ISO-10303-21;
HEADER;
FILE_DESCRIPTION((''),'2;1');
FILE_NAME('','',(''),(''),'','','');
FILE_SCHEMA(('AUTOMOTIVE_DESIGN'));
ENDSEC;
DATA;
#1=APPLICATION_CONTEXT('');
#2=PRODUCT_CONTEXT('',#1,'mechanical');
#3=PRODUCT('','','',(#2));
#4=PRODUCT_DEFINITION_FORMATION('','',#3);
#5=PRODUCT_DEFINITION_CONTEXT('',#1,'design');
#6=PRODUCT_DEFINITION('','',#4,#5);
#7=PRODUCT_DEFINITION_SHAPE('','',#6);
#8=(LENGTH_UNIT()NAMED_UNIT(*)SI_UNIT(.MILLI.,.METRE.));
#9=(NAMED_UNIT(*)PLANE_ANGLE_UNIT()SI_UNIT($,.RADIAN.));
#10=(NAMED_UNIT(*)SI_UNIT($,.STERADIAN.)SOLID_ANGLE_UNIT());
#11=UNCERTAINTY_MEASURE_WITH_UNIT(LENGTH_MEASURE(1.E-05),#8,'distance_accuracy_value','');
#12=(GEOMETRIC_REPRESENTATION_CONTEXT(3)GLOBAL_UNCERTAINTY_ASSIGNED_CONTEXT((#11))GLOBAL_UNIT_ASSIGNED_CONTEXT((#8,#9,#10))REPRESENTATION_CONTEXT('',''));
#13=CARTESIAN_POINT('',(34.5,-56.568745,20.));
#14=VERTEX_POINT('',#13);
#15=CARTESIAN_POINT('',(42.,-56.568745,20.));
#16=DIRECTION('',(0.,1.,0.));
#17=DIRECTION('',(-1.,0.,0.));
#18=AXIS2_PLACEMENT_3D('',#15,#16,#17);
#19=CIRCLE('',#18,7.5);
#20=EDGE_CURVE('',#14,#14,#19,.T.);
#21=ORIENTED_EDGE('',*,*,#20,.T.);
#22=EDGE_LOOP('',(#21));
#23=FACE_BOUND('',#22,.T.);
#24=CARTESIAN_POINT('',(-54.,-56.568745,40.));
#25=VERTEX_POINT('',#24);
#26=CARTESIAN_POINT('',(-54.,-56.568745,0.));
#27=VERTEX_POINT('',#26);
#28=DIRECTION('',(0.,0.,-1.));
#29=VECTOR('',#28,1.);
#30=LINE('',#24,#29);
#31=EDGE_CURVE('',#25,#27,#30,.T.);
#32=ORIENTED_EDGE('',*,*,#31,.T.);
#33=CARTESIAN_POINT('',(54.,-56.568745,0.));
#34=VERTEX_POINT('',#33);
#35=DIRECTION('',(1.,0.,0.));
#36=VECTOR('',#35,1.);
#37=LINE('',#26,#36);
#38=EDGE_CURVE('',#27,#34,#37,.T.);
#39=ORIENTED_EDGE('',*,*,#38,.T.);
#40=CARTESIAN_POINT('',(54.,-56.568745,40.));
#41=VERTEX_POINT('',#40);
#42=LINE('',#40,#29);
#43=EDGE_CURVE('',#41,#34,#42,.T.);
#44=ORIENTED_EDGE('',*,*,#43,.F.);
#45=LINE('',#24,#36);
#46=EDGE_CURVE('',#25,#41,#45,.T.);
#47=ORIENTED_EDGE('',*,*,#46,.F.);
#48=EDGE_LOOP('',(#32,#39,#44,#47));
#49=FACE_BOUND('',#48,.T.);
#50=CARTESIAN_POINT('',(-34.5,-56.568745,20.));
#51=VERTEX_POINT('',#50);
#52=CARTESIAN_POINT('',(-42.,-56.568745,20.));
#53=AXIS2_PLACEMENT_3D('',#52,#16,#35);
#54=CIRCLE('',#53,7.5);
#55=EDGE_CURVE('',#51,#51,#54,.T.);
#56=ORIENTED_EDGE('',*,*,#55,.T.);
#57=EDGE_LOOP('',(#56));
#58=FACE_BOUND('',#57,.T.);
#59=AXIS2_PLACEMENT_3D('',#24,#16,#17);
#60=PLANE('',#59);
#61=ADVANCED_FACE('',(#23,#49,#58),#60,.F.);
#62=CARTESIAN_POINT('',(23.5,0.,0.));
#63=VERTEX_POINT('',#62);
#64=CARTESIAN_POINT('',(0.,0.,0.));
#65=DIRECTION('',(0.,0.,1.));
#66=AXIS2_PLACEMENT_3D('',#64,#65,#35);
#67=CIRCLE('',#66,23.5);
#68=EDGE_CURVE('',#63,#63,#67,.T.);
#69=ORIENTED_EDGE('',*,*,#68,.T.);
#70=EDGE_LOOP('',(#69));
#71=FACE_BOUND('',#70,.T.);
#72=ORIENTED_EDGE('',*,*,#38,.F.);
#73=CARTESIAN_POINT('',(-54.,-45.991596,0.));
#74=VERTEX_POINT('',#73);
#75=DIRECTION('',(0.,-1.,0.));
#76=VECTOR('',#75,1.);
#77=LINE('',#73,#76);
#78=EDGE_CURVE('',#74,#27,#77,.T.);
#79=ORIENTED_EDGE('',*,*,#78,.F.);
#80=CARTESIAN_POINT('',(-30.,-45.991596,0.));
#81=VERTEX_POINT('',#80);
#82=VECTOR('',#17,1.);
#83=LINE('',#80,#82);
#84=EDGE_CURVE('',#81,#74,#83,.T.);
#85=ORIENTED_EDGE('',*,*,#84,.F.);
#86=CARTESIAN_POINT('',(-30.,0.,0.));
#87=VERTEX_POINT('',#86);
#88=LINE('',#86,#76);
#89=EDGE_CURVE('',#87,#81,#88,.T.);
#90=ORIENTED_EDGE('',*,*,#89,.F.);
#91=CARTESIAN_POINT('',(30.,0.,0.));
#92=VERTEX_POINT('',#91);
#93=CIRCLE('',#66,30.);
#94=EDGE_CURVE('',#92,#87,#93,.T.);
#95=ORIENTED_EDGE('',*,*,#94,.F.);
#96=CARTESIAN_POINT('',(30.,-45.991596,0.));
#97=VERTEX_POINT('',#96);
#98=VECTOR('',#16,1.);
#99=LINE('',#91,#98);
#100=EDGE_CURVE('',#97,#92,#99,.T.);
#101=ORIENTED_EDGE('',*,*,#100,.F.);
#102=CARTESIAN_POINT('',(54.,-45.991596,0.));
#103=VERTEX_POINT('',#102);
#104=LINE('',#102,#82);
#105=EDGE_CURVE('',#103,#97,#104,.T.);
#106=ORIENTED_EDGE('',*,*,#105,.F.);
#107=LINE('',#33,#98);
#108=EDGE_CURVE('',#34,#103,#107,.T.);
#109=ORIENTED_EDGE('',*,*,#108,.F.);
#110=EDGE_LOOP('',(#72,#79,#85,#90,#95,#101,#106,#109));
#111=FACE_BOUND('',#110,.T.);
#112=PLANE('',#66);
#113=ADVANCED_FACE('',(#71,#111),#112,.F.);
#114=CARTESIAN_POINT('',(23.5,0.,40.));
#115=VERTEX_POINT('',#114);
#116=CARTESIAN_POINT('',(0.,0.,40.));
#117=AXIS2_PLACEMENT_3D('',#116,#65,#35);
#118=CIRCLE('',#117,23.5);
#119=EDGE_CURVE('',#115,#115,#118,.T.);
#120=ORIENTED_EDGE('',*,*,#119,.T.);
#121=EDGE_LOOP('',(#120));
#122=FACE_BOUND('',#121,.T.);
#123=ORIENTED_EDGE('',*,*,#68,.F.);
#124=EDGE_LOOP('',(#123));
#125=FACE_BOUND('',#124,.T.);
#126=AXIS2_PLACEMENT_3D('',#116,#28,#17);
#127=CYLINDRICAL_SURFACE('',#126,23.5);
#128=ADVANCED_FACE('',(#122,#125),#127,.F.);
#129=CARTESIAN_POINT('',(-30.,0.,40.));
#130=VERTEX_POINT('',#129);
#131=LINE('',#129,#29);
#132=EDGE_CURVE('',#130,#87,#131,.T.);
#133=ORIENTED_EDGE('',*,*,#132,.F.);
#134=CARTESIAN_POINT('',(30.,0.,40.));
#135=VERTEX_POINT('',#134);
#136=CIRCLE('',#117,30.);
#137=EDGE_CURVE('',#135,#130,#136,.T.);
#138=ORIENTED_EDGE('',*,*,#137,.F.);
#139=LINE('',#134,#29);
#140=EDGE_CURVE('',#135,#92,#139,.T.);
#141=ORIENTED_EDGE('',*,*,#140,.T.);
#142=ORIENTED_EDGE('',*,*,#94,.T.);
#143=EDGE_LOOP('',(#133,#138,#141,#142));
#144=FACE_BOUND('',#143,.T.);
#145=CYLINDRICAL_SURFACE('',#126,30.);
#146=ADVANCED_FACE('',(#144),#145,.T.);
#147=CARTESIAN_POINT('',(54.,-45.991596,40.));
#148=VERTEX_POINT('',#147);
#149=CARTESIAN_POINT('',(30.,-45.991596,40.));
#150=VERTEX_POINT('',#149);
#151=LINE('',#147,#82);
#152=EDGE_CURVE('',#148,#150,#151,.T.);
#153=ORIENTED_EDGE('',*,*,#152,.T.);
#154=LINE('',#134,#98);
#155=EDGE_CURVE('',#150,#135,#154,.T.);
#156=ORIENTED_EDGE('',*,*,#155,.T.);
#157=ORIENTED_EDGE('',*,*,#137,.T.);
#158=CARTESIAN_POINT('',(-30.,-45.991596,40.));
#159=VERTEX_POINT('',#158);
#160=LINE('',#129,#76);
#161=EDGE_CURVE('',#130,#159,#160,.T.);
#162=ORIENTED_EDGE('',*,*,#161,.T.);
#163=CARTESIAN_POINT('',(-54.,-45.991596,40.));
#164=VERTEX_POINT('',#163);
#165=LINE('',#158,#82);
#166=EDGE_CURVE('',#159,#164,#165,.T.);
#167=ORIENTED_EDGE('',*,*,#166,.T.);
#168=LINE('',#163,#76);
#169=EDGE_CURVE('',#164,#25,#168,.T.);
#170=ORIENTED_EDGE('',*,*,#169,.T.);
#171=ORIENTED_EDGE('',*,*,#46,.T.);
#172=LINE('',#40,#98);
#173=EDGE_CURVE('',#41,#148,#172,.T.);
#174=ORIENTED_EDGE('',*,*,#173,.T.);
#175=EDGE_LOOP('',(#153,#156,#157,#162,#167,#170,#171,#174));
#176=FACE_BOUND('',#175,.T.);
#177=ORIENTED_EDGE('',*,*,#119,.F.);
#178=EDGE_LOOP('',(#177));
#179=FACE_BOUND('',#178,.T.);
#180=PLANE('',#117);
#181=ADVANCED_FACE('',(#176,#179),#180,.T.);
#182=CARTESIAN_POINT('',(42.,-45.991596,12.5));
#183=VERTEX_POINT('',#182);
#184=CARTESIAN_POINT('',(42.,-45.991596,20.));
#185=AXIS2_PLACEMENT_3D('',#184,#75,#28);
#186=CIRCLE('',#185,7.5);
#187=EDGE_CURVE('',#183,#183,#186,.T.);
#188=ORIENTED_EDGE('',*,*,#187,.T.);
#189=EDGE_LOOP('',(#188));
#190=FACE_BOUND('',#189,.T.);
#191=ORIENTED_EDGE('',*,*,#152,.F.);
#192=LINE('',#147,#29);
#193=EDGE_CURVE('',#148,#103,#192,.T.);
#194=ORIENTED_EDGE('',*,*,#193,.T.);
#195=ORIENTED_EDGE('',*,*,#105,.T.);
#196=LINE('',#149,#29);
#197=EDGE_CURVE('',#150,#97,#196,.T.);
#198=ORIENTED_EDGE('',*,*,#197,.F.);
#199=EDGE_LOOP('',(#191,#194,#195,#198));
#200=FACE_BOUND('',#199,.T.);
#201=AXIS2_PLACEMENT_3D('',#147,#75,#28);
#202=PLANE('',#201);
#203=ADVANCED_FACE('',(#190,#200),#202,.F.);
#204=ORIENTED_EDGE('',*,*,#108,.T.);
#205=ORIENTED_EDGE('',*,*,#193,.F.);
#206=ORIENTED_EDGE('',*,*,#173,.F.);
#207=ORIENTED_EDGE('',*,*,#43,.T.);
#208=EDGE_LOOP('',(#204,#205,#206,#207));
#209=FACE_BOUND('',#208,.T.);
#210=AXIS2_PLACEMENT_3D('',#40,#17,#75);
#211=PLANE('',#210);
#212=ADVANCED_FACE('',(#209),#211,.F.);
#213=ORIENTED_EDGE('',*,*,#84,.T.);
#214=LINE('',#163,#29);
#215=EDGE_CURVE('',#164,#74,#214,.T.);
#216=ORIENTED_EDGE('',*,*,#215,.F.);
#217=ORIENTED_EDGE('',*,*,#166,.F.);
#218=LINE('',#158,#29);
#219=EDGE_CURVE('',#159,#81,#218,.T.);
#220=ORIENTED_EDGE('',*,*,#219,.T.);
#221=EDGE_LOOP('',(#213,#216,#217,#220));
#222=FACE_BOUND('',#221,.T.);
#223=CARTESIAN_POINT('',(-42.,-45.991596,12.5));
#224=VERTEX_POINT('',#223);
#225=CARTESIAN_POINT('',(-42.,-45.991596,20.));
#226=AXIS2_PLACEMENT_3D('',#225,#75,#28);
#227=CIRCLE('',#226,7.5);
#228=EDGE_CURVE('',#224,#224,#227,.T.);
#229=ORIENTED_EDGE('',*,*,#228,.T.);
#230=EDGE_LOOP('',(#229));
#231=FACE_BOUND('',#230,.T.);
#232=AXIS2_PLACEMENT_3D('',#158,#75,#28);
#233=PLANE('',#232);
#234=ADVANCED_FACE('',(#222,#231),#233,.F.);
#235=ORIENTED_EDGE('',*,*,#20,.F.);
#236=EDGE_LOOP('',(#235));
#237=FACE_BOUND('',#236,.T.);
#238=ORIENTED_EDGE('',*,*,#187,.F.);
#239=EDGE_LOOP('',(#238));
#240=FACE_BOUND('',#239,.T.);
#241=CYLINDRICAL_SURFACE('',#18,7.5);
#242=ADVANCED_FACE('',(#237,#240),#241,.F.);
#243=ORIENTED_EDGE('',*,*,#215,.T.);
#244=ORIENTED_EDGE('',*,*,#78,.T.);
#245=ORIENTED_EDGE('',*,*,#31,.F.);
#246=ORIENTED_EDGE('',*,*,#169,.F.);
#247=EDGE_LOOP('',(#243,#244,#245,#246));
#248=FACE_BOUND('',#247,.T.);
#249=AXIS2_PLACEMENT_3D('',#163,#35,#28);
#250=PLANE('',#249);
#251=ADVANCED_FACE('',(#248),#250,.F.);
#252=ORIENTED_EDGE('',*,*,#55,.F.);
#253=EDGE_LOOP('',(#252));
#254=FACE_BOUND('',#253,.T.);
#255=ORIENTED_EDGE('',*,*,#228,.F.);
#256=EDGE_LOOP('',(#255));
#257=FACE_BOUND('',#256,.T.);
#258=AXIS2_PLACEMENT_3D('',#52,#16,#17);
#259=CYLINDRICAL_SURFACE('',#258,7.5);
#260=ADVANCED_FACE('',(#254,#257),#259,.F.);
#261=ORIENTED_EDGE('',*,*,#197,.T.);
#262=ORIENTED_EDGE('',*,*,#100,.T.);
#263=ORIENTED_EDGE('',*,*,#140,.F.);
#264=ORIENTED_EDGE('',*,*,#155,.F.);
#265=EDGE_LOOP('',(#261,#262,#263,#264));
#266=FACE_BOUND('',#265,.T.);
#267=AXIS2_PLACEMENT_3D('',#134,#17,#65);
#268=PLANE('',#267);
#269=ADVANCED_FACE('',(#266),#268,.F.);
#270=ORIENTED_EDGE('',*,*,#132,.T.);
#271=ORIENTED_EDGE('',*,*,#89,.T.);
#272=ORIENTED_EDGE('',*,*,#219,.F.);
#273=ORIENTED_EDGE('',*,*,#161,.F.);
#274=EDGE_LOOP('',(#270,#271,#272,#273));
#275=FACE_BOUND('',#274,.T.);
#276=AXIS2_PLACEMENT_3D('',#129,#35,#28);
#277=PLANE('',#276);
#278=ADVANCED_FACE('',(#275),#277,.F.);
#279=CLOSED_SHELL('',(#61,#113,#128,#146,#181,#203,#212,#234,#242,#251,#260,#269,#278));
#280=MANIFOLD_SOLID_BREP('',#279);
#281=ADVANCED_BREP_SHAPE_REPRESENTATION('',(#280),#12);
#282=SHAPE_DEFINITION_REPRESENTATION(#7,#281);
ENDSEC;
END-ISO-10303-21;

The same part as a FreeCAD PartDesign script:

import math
import FreeCAD as App
import Part
import Sketcher

V = App.Vector

doc = App.newDocument("Part")
body = doc.addObject("PartDesign::Body", "Body")

sketch1 = doc.addObject("Sketcher::SketchObject", "Sketch")
body.addObject(sketch1)
sketch1.AttachmentSupport = (doc.XY_Plane, [""])
sketch1.MapMode = "FlatFace"
sketch1.addGeometry(Part.LineSegment(V(-30, 0, 0), V(-30, -46, 0)), False)
sketch1.addGeometry(Part.LineSegment(V(-30, -46, 0), V(-54, -46, 0)), False)
sketch1.addGeometry(Part.LineSegment(V(-54, -46, 0), V(-54, -57, 0)), False)
sketch1.addGeometry(Part.LineSegment(V(-54, -57, 0), V(54, -57, 0)), False)
sketch1.addGeometry(Part.LineSegment(V(54, -57, 0), V(54, -46, 0)), False)
sketch1.addGeometry(Part.LineSegment(V(54, -46, 0), V(30, -46, 0)), False)
sketch1.addGeometry(Part.LineSegment(V(30, -46, 0), V(30, 0, 0)), False)
sketch1.addGeometry(Part.ArcOfCircle(Part.Circle(V(0, 0, 0), V(0, 0, 1), 30), math.radians(0), math.radians(180)), False)
sketch1.addGeometry(Part.Circle(V(0, 0, 0), V(0, 0, 1), 24), False)
sketch1.addConstraint(Sketcher.Constraint("Coincident", 0, 2, 1, 1))
sketch1.addConstraint(Sketcher.Constraint("Coincident", 1, 2, 2, 1))
sketch1.addConstraint(Sketcher.Constraint("Coincident", 2, 2, 3, 1))
sketch1.addConstraint(Sketcher.Constraint("Coincident", 3, 2, 4, 1))
sketch1.addConstraint(Sketcher.Constraint("Coincident", 4, 2, 5, 1))
sketch1.addConstraint(Sketcher.Constraint("Coincident", 5, 2, 6, 1))
sketch1.addConstraint(Sketcher.Constraint("Tangent", 6, 2, 7, 1))
sketch1.addConstraint(Sketcher.Constraint("Tangent", 7, 2, 0, 1))
sketch1.addConstraint(Sketcher.Constraint("Vertical", 0))
sketch1.addConstraint(Sketcher.Constraint("Horizontal", 1))
sketch1.addConstraint(Sketcher.Constraint("Vertical", 2))
sketch1.addConstraint(Sketcher.Constraint("Horizontal", 3))
sketch1.addConstraint(Sketcher.Constraint("Vertical", 4))
sketch1.addConstraint(Sketcher.Constraint("Horizontal", 5))
sketch1.addConstraint(Sketcher.Constraint("Vertical", 6))
sketch1.addConstraint(Sketcher.Constraint("Coincident", 7, 3, -1, 1))
sketch1.addConstraint(Sketcher.Constraint("Coincident", 8, 3, -1, 1))
sketch1.addConstraint(Sketcher.Constraint("Symmetric", 1, 2, 4, 2, -2))
sketch1.addConstraint(Sketcher.Constraint("Diameter", 8, 47.0))
sketch1.addConstraint(Sketcher.Constraint("Radius", 7, 30.0))
sketch1.addConstraint(Sketcher.Constraint("DistanceX", 1, 2, 1, 1, 24.0))
sketch1.addConstraint(Sketcher.Constraint("DistanceY", 2, 2, 2, 1, 10.577149))
sketch1.addConstraint(Sketcher.Constraint("DistanceY", 0, 2, 0, 1, 45.991596))
pad1 = doc.addObject("PartDesign::Pad", "Pad")
body.addObject(pad1)
pad1.Profile = sketch1
pad1.Length = 40

sketch2 = doc.addObject("Sketcher::SketchObject", "Sketch001")
body.addObject(sketch2)
sketch2.AttachmentSupport = (doc.XZ_Plane, [""])
sketch2.MapMode = "FlatFace"
sketch2.AttachmentOffset = App.Placement(V(0, 0, 45.991596), App.Rotation())
sketch2.addGeometry(Part.Circle(V(42, 20, 0), V(0, 0, 1), 8), False)
sketch2.addGeometry(Part.Circle(V(-42, 20, 0), V(0, 0, 1), 8), False)
sketch2.addConstraint(Sketcher.Constraint("Equal", 0, 1))
sketch2.addConstraint(Sketcher.Constraint("Symmetric", 0, 3, 1, 3, -2))
sketch2.addConstraint(Sketcher.Constraint("Diameter", 0, 15.0))
sketch2.addConstraint(Sketcher.Constraint("DistanceX", -1, 1, 0, 3, 42.0))
sketch2.addConstraint(Sketcher.Constraint("DistanceY", -1, 1, 0, 3, 20.0))
pocket1 = doc.addObject("PartDesign::Pocket", "Pocket")
body.addObject(pocket1)
pocket1.Profile = sketch2
pocket1.Type = "ThroughAll"
pocket1.Midplane = True

doc.recompute()
